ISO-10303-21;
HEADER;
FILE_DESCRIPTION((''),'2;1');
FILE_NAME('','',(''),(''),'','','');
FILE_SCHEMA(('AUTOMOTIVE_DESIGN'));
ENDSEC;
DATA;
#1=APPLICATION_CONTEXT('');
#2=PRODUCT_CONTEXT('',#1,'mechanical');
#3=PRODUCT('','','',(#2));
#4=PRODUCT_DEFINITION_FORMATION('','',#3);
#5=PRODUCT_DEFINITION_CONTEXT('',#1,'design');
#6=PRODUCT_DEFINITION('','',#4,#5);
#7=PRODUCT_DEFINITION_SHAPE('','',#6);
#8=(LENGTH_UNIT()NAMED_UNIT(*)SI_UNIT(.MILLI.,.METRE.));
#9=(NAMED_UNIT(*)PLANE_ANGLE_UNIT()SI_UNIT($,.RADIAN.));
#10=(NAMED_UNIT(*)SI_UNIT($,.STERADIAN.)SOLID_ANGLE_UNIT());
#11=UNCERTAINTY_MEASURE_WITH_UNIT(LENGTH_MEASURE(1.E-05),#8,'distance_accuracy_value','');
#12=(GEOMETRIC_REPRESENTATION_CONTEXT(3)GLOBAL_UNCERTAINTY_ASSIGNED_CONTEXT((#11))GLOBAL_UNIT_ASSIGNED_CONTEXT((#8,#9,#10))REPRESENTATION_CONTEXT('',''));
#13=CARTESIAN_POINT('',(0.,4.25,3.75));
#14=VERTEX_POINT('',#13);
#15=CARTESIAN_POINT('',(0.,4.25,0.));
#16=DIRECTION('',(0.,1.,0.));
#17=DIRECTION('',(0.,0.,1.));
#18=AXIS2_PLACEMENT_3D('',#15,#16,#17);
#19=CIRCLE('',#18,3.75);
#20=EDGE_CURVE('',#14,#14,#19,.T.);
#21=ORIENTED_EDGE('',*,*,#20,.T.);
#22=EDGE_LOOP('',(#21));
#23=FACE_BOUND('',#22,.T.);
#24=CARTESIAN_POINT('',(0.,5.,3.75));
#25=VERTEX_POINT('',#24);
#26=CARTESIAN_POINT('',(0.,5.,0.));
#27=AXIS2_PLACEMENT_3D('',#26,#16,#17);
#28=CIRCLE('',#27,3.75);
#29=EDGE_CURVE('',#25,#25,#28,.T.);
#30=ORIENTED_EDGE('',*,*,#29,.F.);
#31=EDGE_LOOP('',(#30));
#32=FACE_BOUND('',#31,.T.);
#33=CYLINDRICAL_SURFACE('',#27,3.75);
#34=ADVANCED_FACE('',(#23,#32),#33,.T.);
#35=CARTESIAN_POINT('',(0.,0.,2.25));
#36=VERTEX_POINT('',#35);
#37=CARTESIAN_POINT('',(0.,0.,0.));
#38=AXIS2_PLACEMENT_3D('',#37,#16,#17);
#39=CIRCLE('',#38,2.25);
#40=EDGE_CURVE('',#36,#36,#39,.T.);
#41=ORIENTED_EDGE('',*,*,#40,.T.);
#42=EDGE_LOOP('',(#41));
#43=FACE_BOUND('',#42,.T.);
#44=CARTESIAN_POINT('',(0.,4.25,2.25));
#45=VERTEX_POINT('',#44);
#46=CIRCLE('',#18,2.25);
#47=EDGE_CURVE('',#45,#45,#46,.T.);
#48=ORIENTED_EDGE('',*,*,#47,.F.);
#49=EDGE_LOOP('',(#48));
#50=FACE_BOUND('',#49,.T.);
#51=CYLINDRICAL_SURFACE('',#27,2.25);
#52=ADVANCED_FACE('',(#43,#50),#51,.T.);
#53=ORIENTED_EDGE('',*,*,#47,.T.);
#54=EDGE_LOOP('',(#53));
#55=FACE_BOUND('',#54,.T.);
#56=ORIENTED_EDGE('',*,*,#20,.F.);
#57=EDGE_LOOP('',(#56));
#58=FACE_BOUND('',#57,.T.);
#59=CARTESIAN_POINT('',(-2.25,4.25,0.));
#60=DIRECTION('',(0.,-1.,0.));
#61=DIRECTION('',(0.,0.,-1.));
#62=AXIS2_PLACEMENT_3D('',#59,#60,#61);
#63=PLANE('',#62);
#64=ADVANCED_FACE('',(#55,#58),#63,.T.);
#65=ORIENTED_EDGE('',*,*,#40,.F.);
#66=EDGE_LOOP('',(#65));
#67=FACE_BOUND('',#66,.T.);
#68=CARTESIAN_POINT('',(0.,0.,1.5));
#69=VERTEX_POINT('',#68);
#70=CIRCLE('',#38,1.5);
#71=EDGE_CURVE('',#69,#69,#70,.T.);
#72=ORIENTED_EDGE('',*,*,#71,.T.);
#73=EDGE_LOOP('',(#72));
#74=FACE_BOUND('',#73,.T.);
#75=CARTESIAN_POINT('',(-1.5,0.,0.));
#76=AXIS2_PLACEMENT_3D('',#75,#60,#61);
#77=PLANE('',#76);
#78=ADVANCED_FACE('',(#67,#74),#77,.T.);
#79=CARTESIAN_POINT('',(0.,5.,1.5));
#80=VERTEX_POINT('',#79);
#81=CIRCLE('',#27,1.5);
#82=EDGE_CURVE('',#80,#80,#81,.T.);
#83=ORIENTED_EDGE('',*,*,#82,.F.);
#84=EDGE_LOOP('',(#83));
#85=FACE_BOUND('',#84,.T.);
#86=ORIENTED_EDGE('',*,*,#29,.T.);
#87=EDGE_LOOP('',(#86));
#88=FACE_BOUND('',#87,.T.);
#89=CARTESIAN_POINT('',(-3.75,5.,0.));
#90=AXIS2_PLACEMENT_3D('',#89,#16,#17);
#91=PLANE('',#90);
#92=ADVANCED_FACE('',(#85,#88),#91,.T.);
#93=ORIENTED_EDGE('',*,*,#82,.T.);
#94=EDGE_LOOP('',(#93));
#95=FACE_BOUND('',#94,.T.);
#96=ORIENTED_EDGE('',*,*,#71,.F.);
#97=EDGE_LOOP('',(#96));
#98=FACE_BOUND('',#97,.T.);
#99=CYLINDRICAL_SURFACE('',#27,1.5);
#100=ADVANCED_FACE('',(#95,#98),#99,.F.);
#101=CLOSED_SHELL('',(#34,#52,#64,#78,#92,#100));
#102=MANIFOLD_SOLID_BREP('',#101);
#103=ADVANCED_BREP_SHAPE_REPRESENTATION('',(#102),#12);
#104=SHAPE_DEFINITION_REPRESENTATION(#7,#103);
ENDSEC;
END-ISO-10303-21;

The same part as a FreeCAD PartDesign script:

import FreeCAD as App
import Part
import Sketcher

doc = App.newDocument("Part")
params = doc.addObject("Spreadsheet::Sheet", "Params")
for row, (alias, value) in enumerate([
    ("sketch1_height", "5 mm"),
    ("sketch1_width", "1.5 mm"),
    ("sketch1_width2", "2.25 mm"),
    ("revolution_angle", "360 deg"),
], start=1):
    params.set(f"A{row}", alias)
    params.set(f"B{row}", "=" + value)
    params.setAlias(f"B{row}", alias)

body = doc.addObject("PartDesign::Body", "Body")

# Sketch on XY plane
sketch1 = doc.addObject("Sketcher::SketchObject", "Sketch")
body.addObject(sketch1)
sketch1.AttachmentSupport = (doc.XY_Plane, [""])
sketch1.MapMode = "FlatFace"
sketch1.addGeometry([
    Part.LineSegment(App.Vector(-1.5, 5, 0), App.Vector(-3.75, 5, 0)),  # 0
    Part.LineSegment(App.Vector(-3.75, 5, 0), App.Vector(-3.75, 4.25, 0)),  # 1
    Part.LineSegment(App.Vector(-3.75, 4.25, 0), App.Vector(-2.25, 4.25, 0)),  # 2
    Part.LineSegment(App.Vector(-2.25, 4.25, 0), App.Vector(-2.25, 0, 0)),  # 3
    Part.LineSegment(App.Vector(-2.25, 0, 0), App.Vector(-1.5, 0, 0)),  # 4
    Part.LineSegment(App.Vector(-1.5, 0, 0), App.Vector(-1.5, 5, 0)),  # 5
], False)
sketch1.addConstraint([
    Sketcher.Constraint("Coincident", 0, 2, 1, 1),
    Sketcher.Constraint("Coincident", 1, 2, 2, 1),
    Sketcher.Constraint("Coincident", 2, 2, 3, 1),
    Sketcher.Constraint("Coincident", 3, 2, 4, 1),
    Sketcher.Constraint("Coincident", 4, 2, 5, 1),
    Sketcher.Constraint("Coincident", 5, 2, 0, 1),
    Sketcher.Constraint("Horizontal", 0),
    Sketcher.Constraint("Vertical", 1),
    Sketcher.Constraint("Horizontal", 2),
    Sketcher.Constraint("Vertical", 3),
    Sketcher.Constraint("Horizontal", 4),
    Sketcher.Constraint("Vertical", 5),
    Sketcher.Constraint("PointOnObject", 3, 2, -1),
    Sketcher.Constraint("Equal", 4, 1),
    Sketcher.Constraint("DistanceY", 5, 1, 5, 2, 5.0),
    Sketcher.Constraint("DistanceX", 2, 1, 2, 2, 1.5),
    Sketcher.Constraint("DistanceX", 0, 2, 0, 1, 2.25),
    Sketcher.Constraint("DistanceX", 4, 2, -1, 1, 1.5),
])
sketch1.setExpression("Constraints[14]", "Params.sketch1_height")
sketch1.setExpression("Constraints[15]", "Params.sketch1_width")
sketch1.setExpression("Constraints[16]", "Params.sketch1_width2")
revolution = doc.addObject("PartDesign::Revolution", "Revolution")
body.addObject(revolution)
revolution.Profile = sketch1
revolution.ReferenceAxis = (sketch1, ["V_Axis"])
revolution.setExpression("Angle", "Params.revolution_angle")

doc.recompute()
